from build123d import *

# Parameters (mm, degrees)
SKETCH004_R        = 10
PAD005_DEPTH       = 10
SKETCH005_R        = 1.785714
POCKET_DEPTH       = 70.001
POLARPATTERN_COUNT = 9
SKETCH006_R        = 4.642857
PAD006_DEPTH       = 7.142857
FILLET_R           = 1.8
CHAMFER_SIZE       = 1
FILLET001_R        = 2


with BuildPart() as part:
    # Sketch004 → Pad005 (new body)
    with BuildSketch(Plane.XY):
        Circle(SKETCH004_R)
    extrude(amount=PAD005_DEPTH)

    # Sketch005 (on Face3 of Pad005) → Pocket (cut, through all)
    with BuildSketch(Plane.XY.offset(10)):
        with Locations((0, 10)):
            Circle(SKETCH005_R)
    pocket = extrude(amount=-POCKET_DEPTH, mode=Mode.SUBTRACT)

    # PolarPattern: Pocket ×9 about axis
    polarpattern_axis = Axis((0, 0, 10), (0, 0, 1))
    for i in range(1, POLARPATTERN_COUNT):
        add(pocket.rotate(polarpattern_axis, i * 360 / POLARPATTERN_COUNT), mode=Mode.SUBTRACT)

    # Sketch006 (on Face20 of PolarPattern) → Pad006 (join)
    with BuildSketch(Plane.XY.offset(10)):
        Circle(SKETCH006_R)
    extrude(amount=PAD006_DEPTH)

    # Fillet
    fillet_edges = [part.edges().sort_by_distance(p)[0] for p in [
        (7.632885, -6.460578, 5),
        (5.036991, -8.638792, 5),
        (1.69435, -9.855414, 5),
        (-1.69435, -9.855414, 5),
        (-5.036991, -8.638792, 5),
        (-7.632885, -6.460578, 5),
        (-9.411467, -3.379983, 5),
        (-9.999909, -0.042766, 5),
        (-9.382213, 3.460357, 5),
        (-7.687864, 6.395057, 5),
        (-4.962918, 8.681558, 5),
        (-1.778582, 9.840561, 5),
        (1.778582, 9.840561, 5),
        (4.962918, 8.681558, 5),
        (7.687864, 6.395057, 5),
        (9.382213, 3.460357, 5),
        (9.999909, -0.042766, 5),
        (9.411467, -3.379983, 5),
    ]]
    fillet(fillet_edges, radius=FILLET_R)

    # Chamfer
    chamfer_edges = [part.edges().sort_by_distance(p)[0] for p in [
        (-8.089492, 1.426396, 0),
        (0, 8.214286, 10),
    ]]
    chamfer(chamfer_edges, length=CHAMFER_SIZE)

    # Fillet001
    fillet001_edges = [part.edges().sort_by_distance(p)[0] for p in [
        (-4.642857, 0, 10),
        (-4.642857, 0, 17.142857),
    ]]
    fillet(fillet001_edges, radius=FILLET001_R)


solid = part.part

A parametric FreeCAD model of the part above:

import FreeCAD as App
import Part
import Sketcher
Q = App.Units.Quantity


def edges_at(feature, points):
    """Names of the edges that pass closest to the given points."""
    edges = feature.Shape.Edges
    near = lambda p: min(range(len(edges)), key=lambda i: edges[i].distToShape(Part.Vertex(*p))[0])
    return sorted({f"Edge{near(p) + 1}" for p in points})

doc = App.newDocument("Part")
params = doc.addObject("Spreadsheet::Sheet", "Params")
for row, (alias, value) in enumerate([
    ("sketch1_diameter", "20 mm"),
    ("pad1_length", "10 mm"),
    ("pad2_length", "7.142857 mm"),
    ("fillet_radius", "1.8 mm"),
    ("chamfer_size", "1 mm"),
    ("fillet2_radius", "2 mm"),
], start=1):
    params.set(f"A{row}", alias)
    params.set(f"B{row}", "=" + value)
    params.setAlias(f"B{row}", alias)

body = doc.addObject("PartDesign::Body", "Body")

# Sketch on XY plane
sketch1 = doc.addObject("Sketcher::SketchObject", "Sketch")
body.addObject(sketch1)
sketch1.AttachmentSupport = (doc.XY_Plane, [""])
sketch1.MapMode = "FlatFace"
sketch1.addGeometry(Part.Circle(App.Vector(0, 0, 0), App.Vector(0, 0, 1), 10), False)
sketch1.addConstraint([
    Sketcher.Constraint("Coincident", 0, 3, -1, 1),
    Sketcher.Constraint("Diameter", 0, Q("20 mm")),
])
sketch1.setExpression("Constraints[1]", "Params.sketch1_diameter")
pad1 = doc.addObject("PartDesign::Pad", "Pad")
body.addObject(pad1)
pad1.Profile = sketch1
pad1.setExpression("Length", "Params.pad1_length")

# Sketch on XY plane
sketch2 = doc.addObject("Sketcher::SketchObject", "Sketch001")
body.addObject(sketch2)
sketch2.AttachmentSupport = (doc.XY_Plane, [""])
sketch2.MapMode = "FlatFace"
sketch2.AttachmentOffset = App.Placement(App.Vector(0, 0, 10), App.Rotation())
sketch2.addGeometry(Part.Circle(App.Vector(0, 10, 0), App.Vector(0, 0, 1), 1.8), False)
sketch2.addConstraint([
    Sketcher.Constraint("PointOnObject", 0, 3, -2),
    Sketcher.Constraint("DistanceY", -1, 1, 0, 3, Q("10 mm")),
    Sketcher.Constraint("Diameter", 0, Q("3.571428 mm")),
])
pocket1 = doc.addObject("PartDesign::Pocket", "Pocket")
body.addObject(pocket1)
pocket1.Profile = sketch2
pocket1.Type = "ThroughAll"
doc.recompute()

polarpattern = doc.addObject("PartDesign::PolarPattern", "PolarPattern")
body.addObject(polarpattern)
polarpattern.Originals = [pocket1]
polarpattern.Axis = (doc.Z_Axis, [""])
polarpattern.Angle = 360
polarpattern.Occurrences = 9
body.Tip = polarpattern

# Sketch on XY plane
sketch3 = doc.addObject("Sketcher::SketchObject", "Sketch002")
body.addObject(sketch3)
sketch3.AttachmentSupport = (doc.XY_Plane, [""])
sketch3.MapMode = "FlatFace"
sketch3.AttachmentOffset = App.Placement(App.Vector(0, 0, 10), App.Rotation())
sketch3.addGeometry(Part.Circle(App.Vector(0, 0, 0), App.Vector(0, 0, 1), 4.6), False)
sketch3.addConstraint([
    Sketcher.Constraint("Coincident", 0, 3, -1, 1),
    Sketcher.Constraint("Diameter", 0, Q("9.285714 mm")),
])
pad2 = doc.addObject("PartDesign::Pad", "Pad001")
body.addObject(pad2)
pad2.Profile = sketch3
pad2.setExpression("Length", "Params.pad2_length")
doc.recompute()

fillet = doc.addObject("PartDesign::Fillet", "Fillet")
body.addObject(fillet)
fillet.Base = (pad2, edges_at(pad2, [
    (7.633, -6.461, 5),
    (5.037, -8.639, 5),
    (1.694, -9.855, 5),
    (-1.694, -9.855, 5),
    (-5.037, -8.639, 5),
    (-7.633, -6.461, 5),
    (-9.411, -3.38, 5),
    (-10, -0.043, 5),
    (-9.382, 3.46, 5),
    (-7.688, 6.395, 5),
    (-4.963, 8.682, 5),
    (-1.779, 9.841, 5),
    (1.779, 9.841, 5),
    (4.963, 8.682, 5),
    (7.688, 6.395, 5),
    (9.382, 3.46, 5),
    (10, -0.043, 5),
    (9.411, -3.38, 5),
]))
fillet.setExpression("Radius", "Params.fillet_radius")
doc.recompute()

chamfer = doc.addObject("PartDesign::Chamfer", "Chamfer")
body.addObject(chamfer)
chamfer.Base = (fillet, edges_at(fillet, [(-8.089, 1.426, 0), (0, 8.214, 10)]))
chamfer.setExpression("Size", "Params.chamfer_size")
doc.recompute()

fillet2 = doc.addObject("PartDesign::Fillet", "Fillet001")
body.addObject(fillet2)
fillet2.Base = (chamfer, edges_at(chamfer, [(-4.643, 0, 10), (-4.643, 0, 17.143)]))
fillet2.setExpression("Radius", "Params.fillet2_radius")

doc.recompute()
